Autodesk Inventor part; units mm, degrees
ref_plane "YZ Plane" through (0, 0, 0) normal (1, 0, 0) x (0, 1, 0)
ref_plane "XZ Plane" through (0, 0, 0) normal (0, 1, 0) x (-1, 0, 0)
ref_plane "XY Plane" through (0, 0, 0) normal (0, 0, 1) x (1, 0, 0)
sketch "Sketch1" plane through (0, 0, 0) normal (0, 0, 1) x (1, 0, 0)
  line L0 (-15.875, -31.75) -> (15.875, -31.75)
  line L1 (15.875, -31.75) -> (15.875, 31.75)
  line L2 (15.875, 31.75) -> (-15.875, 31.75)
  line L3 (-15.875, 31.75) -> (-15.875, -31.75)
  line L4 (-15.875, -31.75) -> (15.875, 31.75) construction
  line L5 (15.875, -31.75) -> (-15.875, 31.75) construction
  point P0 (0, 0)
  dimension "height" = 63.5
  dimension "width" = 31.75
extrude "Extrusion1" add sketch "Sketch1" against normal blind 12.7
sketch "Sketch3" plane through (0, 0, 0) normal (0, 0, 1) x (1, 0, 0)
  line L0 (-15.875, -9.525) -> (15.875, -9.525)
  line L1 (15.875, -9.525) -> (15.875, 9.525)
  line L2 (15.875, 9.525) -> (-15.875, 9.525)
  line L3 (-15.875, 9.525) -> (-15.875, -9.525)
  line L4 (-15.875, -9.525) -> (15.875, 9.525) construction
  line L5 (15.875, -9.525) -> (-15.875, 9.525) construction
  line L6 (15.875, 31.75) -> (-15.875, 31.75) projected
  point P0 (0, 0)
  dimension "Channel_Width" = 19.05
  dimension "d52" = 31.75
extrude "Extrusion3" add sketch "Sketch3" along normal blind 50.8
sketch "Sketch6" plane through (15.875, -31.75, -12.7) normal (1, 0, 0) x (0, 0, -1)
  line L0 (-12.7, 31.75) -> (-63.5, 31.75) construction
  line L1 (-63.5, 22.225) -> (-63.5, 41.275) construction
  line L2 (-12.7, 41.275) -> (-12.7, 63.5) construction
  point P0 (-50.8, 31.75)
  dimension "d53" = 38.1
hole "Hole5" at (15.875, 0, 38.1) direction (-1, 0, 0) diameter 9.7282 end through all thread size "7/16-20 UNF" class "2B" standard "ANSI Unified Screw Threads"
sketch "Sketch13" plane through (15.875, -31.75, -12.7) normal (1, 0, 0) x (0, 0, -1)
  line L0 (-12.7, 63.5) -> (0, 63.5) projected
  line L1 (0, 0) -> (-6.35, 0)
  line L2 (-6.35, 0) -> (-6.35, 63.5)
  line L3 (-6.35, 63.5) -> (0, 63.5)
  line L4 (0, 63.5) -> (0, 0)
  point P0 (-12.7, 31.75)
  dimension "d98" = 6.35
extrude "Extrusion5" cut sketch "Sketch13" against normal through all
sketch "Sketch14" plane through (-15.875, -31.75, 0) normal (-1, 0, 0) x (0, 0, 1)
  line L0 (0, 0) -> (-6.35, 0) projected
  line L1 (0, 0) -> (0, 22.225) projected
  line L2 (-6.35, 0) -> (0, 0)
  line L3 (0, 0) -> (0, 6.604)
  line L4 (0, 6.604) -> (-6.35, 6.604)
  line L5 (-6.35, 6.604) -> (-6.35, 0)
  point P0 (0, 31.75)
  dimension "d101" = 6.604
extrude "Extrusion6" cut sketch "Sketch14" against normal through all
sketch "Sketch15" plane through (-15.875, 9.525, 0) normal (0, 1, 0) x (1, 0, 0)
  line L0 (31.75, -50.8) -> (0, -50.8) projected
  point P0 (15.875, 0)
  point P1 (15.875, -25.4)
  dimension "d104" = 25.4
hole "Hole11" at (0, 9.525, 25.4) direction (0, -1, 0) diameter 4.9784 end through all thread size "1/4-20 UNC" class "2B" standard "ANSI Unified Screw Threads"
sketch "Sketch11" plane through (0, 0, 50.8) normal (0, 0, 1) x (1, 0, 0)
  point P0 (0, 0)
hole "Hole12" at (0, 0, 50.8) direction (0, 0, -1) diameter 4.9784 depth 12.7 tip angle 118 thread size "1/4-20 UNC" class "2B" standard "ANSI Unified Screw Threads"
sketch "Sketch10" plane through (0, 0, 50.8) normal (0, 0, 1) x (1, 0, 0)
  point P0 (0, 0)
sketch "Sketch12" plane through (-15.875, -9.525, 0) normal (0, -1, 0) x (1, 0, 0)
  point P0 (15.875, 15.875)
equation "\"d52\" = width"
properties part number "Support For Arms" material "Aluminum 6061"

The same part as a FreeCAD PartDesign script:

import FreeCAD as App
import Part
import Sketcher

V = App.Vector
Q = App.Units.Quantity

doc = App.newDocument("Part")
body = doc.addObject("PartDesign::Body", "Body")

sketch1 = body.newObject("Sketcher::SketchObject", "Sketch")
sketch1.AttachmentSupport = (doc.getObject("XY_Plane"), [""])
sketch1.MapMode = "FlatFace"
sketch1.addGeometry(Part.LineSegment(V(-16, 32, 0), V(-16, -32, 0)), False)
sketch1.addGeometry(Part.LineSegment(V(-16, -32, 0), V(16, -32, 0)), False)
sketch1.addGeometry(Part.LineSegment(V(16, -32, 0), V(16, 32, 0)), False)
sketch1.addGeometry(Part.LineSegment(V(16, 32, 0), V(-16, 32, 0)), False)
sketch1.addConstraint(Sketcher.Constraint("Coincident", 0, 2, 1, 1))
sketch1.addConstraint(Sketcher.Constraint("Coincident", 1, 2, 2, 1))
sketch1.addConstraint(Sketcher.Constraint("Coincident", 2, 2, 3, 1))
sketch1.addConstraint(Sketcher.Constraint("Coincident", 3, 2, 0, 1))
sketch1.addConstraint(Sketcher.Constraint("Vertical", 0))
sketch1.addConstraint(Sketcher.Constraint("Horizontal", 1))
sketch1.addConstraint(Sketcher.Constraint("Vertical", 2))
sketch1.addConstraint(Sketcher.Constraint("Horizontal", 3))
sketch1.addConstraint(Sketcher.Constraint("Symmetric", 0, 2, 2, 2, -1, 1))
sketch1.addConstraint(Sketcher.Constraint("DistanceY", 0, 2, 0, 1, Q("2.5 in")))
sketch1.addConstraint(Sketcher.Constraint("DistanceX", 1, 1, 1, 2, Q("1.25 in")))
pad1 = body.newObject("PartDesign::Pad", "Pad")
pad1.Profile = sketch1
pad1.Length = Q("0.5 in")
pad1.Reversed = True

sketch2 = body.newObject("Sketcher::SketchObject", "Sketch001")
sketch2.AttachmentSupport = (doc.getObject("XY_Plane"), [""])
sketch2.MapMode = "FlatFace"
sketch2.addGeometry(Part.LineSegment(V(-16, 10, 0), V(-16, -10, 0)), False)
sketch2.addGeometry(Part.LineSegment(V(-16, -10, 0), V(16, -10, 0)), False)
sketch2.addGeometry(Part.LineSegment(V(16, -10, 0), V(16, 10, 0)), False)
sketch2.addGeometry(Part.LineSegment(V(16, 10, 0), V(-16, 10, 0)), False)
sketch2.addConstraint(Sketcher.Constraint("Coincident", 0, 2, 1, 1))
sketch2.addConstraint(Sketcher.Constraint("Coincident", 1, 2, 2, 1))
sketch2.addConstraint(Sketcher.Constraint("Coincident", 2, 2, 3, 1))
sketch2.addConstraint(Sketcher.Constraint("Coincident", 3, 2, 0, 1))
sketch2.addConstraint(Sketcher.Constraint("Vertical", 0))
sketch2.addConstraint(Sketcher.Constraint("Horizontal", 1))
sketch2.addConstraint(Sketcher.Constraint("Vertical", 2))
sketch2.addConstraint(Sketcher.Constraint("Horizontal", 3))
sketch2.addConstraint(Sketcher.Constraint("Symmetric", 0, 2, 2, 2, -1, 1))
sketch2.addConstraint(Sketcher.Constraint("DistanceX", 1, 1, 1, 2, Q("1.25 in")))
sketch2.addConstraint(Sketcher.Constraint("DistanceY", 0, 2, 0, 1, Q("0.75 in")))
pad2 = body.newObject("PartDesign::Pad", "Pad001")
pad2.Profile = sketch2
pad2.Length = Q("2 in")

sketch3 = body.newObject("Sketcher::SketchObject", "Sketch002")
sketch3.AttachmentSupport = (doc.getObject("YZ_Plane"), [""])
sketch3.MapMode = "FlatFace"
sketch3.AttachmentOffset = App.Placement(V(0, 0, 0.625 * 25.4), App.Rotation())
sketch3.addGeometry(Part.Circle(V(0, 38.1, 0), V(0, 0, 1), 4.9), False)
sketch3.addConstraint(Sketcher.Constraint("PointOnObject", 0, 3, -2))
sketch3.addConstraint(Sketcher.Constraint("Diameter", 0, Q("0.383 in")))
sketch3.addConstraint(Sketcher.Constraint("DistanceY", -1, 1, 0, 3, Q("1.5 in")))
doc.recompute()
hole = body.newObject("PartDesign::Hole", "Hole")
hole.Profile = sketch3
hole.ThreadType = "None"
hole.Diameter = Q("0.383 in")
hole.DepthType = "ThroughAll"

sketch4 = body.newObject("Sketcher::SketchObject", "Sketch003")
sketch4.AttachmentSupport = (doc.getObject("YZ_Plane"), [""])
sketch4.MapMode = "FlatFace"
sketch4.AttachmentOffset = App.Placement(V(0, 0, 0.625 * 25.4), App.Rotation())
sketch4.addGeometry(Part.LineSegment(V(32, -13, 0), V(32, -6, 0)), False)
sketch4.addGeometry(Part.LineSegment(V(32, -6, 0), V(-32, -6, 0)), False)
sketch4.addGeometry(Part.LineSegment(V(-32, -6, 0), V(-32, -13, 0)), False)
sketch4.addGeometry(Part.LineSegment(V(-32, -13, 0), V(32, -13, 0)), False)
sketch4.addConstraint(Sketcher.Constraint("Coincident", 0, 2, 1, 1))
sketch4.addConstraint(Sketcher.Constraint("Coincident", 1, 2, 2, 1))
sketch4.addConstraint(Sketcher.Constraint("Coincident", 2, 2, 3, 1))
sketch4.addConstraint(Sketcher.Constraint("Coincident", 3, 2, 0, 1))
sketch4.addConstraint(Sketcher.Constraint("Vertical", 0))
sketch4.addConstraint(Sketcher.Constraint("Horizontal", 1))
sketch4.addConstraint(Sketcher.Constraint("Vertical", 2))
sketch4.addConstraint(Sketcher.Constraint("Horizontal", 3))
sketch4.addConstraint(Sketcher.Constraint("DistanceY", 0, 1, 0, 2, Q("0.25 in")))
sketch4.addConstraint(Sketcher.Constraint("DistanceY", 0, 2, -1, 1, Q("0.25 in")))
sketch4.addConstraint(Sketcher.Constraint("DistanceX", 1, 2, 1, 1, Q("2.5 in")))
sketch4.addConstraint(Sketcher.Constraint("DistanceX", -1, 1, 0, 2, Q("1.25 in")))
pocket1 = body.newObject("PartDesign::Pocket", "Pocket")
pocket1.Profile = sketch4
pocket1.Type = "ThroughAll"

sketch5 = body.newObject("Sketcher::SketchObject", "Sketch004")
sketch5.AttachmentSupport = (doc.getObject("YZ_Plane"), [""])
sketch5.MapMode = "FlatFace"
sketch5.AttachmentOffset = App.Placement(V(0, 0, -0.625 * 25.4), App.Rotation())
sketch5.addGeometry(Part.LineSegment(V(-32, -6, 0), V(-32, 0, 0)), False)
sketch5.addGeometry(Part.LineSegment(V(-32, 0, 0), V(-25, 0, 0)), False)
sketch5.addGeometry(Part.LineSegment(V(-25, 0, 0), V(-25, -6, 0)), False)
sketch5.addGeometry(Part.LineSegment(V(-25, -6, 0), V(-32, -6, 0)), False)
sketch5.addConstraint(Sketcher.Constraint("Coincident", 0, 2, 1, 1))
sketch5.addConstraint(Sketcher.Constraint("Coincident", 1, 2, 2, 1))
sketch5.addConstraint(Sketcher.Constraint("Coincident", 2, 2, 3, 1))
sketch5.addConstraint(Sketcher.Constraint("Coincident", 3, 2, 0, 1))
sketch5.addConstraint(Sketcher.Constraint("Vertical", 0))
sketch5.addConstraint(Sketcher.Constraint("Horizontal", 1))
sketch5.addConstraint(Sketcher.Constraint("Vertical", 2))
sketch5.addConstraint(Sketcher.Constraint("Horizontal", 3))
sketch5.addConstraint(Sketcher.Constraint("PointOnObject", 0, 2, -1))
sketch5.addConstraint(Sketcher.Constraint("DistanceX", 1, 1, 1, 2, Q("0.26 in")))
sketch5.addConstraint(Sketcher.Constraint("DistanceY", 0, 1, 0, 2, Q("0.25 in")))
sketch5.addConstraint(Sketcher.Constraint("DistanceX", 0, 2, -1, 1, Q("1.25 in")))
pocket2 = body.newObject("PartDesign::Pocket", "Pocket001")
pocket2.Profile = sketch5
pocket2.Type = "ThroughAll"
pocket2.Reversed = True

sketch6 = body.newObject("Sketcher::SketchObject", "Sketch005")
sketch6.AttachmentSupport = (doc.getObject("XZ_Plane"), [""])
sketch6.MapMode = "FlatFace"
sketch6.AttachmentOffset = App.Placement(V(0, 0, -0.375 * 25.4), App.Rotation())
sketch6.addGeometry(Part.Circle(V(0, 25.4, 0), V(0, 0, 1), 2.5), False)
sketch6.addConstraint(Sketcher.Constraint("PointOnObject", 0, 3, -2))
sketch6.addConstraint(Sketcher.Constraint("Diameter", 0, Q("0.196 in")))
sketch6.addConstraint(Sketcher.Constraint("DistanceY", -1, 1, 0, 3, Q("1 in")))
doc.recompute()
hole2 = body.newObject("PartDesign::Hole", "Hole001")
hole2.Profile = sketch6
hole2.ThreadType = "None"
hole2.Diameter = Q("0.196 in")
hole2.DepthType = "ThroughAll"
hole2.Reversed = True

sketch7 = body.newObject("Sketcher::SketchObject", "Sketch006")
sketch7.AttachmentSupport = (doc.getObject("XY_Plane"), [""])
sketch7.MapMode = "FlatFace"
sketch7.AttachmentOffset = App.Placement(V(0, 0, 2 * 25.4), App.Rotation())
sketch7.addGeometry(Part.Circle(V(0, 0, 0), V(0, 0, 1), 2.5), False)
sketch7.addConstraint(Sketcher.Constraint("Coincident", 0, 3, -1, 1))
sketch7.addConstraint(Sketcher.Constraint("Diameter", 0, Q("0.196 in")))
doc.recompute()
hole3 = body.newObject("PartDesign::Hole", "Hole002")
hole3.Profile = sketch7
hole3.ThreadType = "None"
hole3.Diameter = Q("0.196 in")
hole3.DepthType = "Dimension"
hole3.Depth = Q("0.5 in")
hole3.DrillPoint = "Angled"
hole3.DrillPointAngle = 118

doc.recompute()
